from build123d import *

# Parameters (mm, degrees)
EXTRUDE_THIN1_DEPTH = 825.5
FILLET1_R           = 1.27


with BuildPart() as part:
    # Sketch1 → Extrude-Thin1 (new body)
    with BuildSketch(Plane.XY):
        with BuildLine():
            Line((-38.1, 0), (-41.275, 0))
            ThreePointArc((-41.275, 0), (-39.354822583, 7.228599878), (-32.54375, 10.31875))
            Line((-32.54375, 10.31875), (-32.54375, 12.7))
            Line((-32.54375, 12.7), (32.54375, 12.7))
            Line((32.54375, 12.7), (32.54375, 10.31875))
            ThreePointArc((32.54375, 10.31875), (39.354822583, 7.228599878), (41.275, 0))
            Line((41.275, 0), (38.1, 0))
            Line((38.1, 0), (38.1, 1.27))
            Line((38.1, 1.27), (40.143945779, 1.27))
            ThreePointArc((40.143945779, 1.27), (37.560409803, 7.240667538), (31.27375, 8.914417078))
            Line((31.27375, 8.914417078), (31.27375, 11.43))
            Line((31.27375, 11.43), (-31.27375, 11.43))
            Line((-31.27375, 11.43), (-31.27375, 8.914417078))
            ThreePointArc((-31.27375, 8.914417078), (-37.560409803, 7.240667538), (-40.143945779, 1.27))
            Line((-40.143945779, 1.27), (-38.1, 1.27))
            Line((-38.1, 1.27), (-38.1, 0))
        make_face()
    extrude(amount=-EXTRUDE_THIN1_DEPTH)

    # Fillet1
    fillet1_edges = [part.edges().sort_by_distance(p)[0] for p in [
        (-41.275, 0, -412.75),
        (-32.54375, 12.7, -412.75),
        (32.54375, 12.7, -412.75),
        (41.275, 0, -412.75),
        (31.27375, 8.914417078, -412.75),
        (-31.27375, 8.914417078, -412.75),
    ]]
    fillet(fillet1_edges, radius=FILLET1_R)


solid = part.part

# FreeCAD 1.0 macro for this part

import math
import FreeCAD as App
import Part
import Sketcher
Q = App.Units.Quantity


def edges_at(feature, points):
    """Names of the edges that pass closest to the given points."""
    edges = feature.Shape.Edges
    near = lambda p: min(range(len(edges)), key=lambda i: edges[i].distToShape(Part.Vertex(*p))[0])
    return sorted({f"Edge{near(p) + 1}" for p in points})

doc = App.newDocument("Part")
params = doc.addObject("Spreadsheet::Sheet", "Params")
for row, (alias, value) in enumerate([
    ("sketch1_radius", "0.34375 in"),
    ("sketch1_height", "0.05 in"),
    ("sketch1_width", "0.125 in"),
    ("sketch1_width2", "2.5625 in"),
    ("sketch1_height2", "0.09375 in"),
    ("pad1_length", "32.5 in"),
    ("fillet_radius", "0.05 in"),
], start=1):
    params.set(f"A{row}", alias)
    params.set(f"B{row}", "=" + value)
    params.setAlias(f"B{row}", alias)

body = doc.addObject("PartDesign::Body", "Body")

sketch1 = body.newObject("Sketcher::SketchObject", "Sketch")
sketch1.AttachmentSupport = (doc.getObject("XY_Plane"), [""])
sketch1.MapMode = "FlatFace"
sketch1.addGeometry(Part.LineSegment(App.Vector(-41.3, 0, 0), App.Vector(-38.1, 0, 0)), False)
sketch1.addGeometry(Part.LineSegment(App.Vector(-38.1, 0, 0), App.Vector(-38.1, 1.3, 0)), False)
sketch1.addGeometry(Part.LineSegment(App.Vector(-38.1, 1.3, 0), App.Vector(-40.1, 1.3, 0)), False)
sketch1.addGeometry(Part.ArcOfCircle(Part.Circle(App.Vector(-32.7, 1.6, 0), App.Vector(0, 0, 1), 7.5), math.radians(79), math.radians(182)), False)
sketch1.addGeometry(Part.LineSegment(App.Vector(-31.3, 8.9, 0), App.Vector(-31.3, 11.4, 0)), False)
sketch1.addGeometry(Part.LineSegment(App.Vector(-31.3, 11.4, 0), App.Vector(31.3, 11.4, 0)), False)
sketch1.addGeometry(Part.LineSegment(App.Vector(31.3, 11.4, 0), App.Vector(31.3, 8.9, 0)), False)
sketch1.addGeometry(Part.ArcOfCircle(Part.Circle(App.Vector(32.7, 1.6, 0), App.Vector(0, 0, 1), 7.5), math.radians(-2), math.radians(101)), False)
sketch1.addGeometry(Part.LineSegment(App.Vector(40.1, 1.3, 0), App.Vector(38.1, 1.3, 0)), False)
sketch1.addGeometry(Part.LineSegment(App.Vector(38.1, 1.3, 0), App.Vector(38.1, 0, 0)), False)
sketch1.addGeometry(Part.LineSegment(App.Vector(38.1, 0, 0), App.Vector(41.3, 0, 0)), False)
sketch1.addGeometry(Part.ArcOfCircle(Part.Circle(App.Vector(32.7, 1.6, 0), App.Vector(0, 0, 1), 8.7), math.radians(-10), math.radians(91)), False)
sketch1.addGeometry(Part.LineSegment(App.Vector(32.5, 10.3, 0), App.Vector(32.5, 12.7, 0)), False)
sketch1.addGeometry(Part.LineSegment(App.Vector(32.5, 12.7, 0), App.Vector(-32.5, 12.7, 0)), False)
sketch1.addGeometry(Part.LineSegment(App.Vector(-32.5, 12.7, 0), App.Vector(-32.5, 10.3, 0)), False)
sketch1.addGeometry(Part.ArcOfCircle(Part.Circle(App.Vector(-32.7, 1.6, 0), App.Vector(0, 0, 1), 8.7), math.radians(89), math.radians(190)), False)
sketch1.addConstraint(Sketcher.Constraint("Coincident", 0, 2, 1, 1))
sketch1.addConstraint(Sketcher.Constraint("Coincident", 1, 2, 2, 1))
sketch1.addConstraint(Sketcher.Constraint("Coincident", 2, 2, 3, 2))
sketch1.addConstraint(Sketcher.Constraint("Coincident", 3, 1, 4, 1))
sketch1.addConstraint(Sketcher.Constraint("Coincident", 4, 2, 5, 1))
sketch1.addConstraint(Sketcher.Constraint("Coincident", 5, 2, 6, 1))
sketch1.addConstraint(Sketcher.Constraint("Coincident", 6, 2, 7, 2))
sketch1.addConstraint(Sketcher.Constraint("Coincident", 7, 1, 8, 1))
sketch1.addConstraint(Sketcher.Constraint("Coincident", 8, 2, 9, 1))
sketch1.addConstraint(Sketcher.Constraint("Coincident", 9, 2, 10, 1))
sketch1.addConstraint(Sketcher.Constraint("Coincident", 10, 2, 11, 1))
sketch1.addConstraint(Sketcher.Constraint("Coincident", 11, 2, 12, 1))
sketch1.addConstraint(Sketcher.Constraint("Coincident", 12, 2, 13, 1))
sketch1.addConstraint(Sketcher.Constraint("Coincident", 13, 2, 14, 1))
sketch1.addConstraint(Sketcher.Constraint("Coincident", 14, 2, 15, 1))
sketch1.addConstraint(Sketcher.Constraint("Coincident", 15, 2, 0, 1))
sketch1.addConstraint(Sketcher.Constraint("Horizontal", 0))
sketch1.addConstraint(Sketcher.Constraint("Vertical", 1))
sketch1.addConstraint(Sketcher.Constraint("Horizontal", 2))
sketch1.addConstraint(Sketcher.Constraint("Vertical", 4))
sketch1.addConstraint(Sketcher.Constraint("Horizontal", 5))
sketch1.addConstraint(Sketcher.Constraint("Vertical", 6))
sketch1.addConstraint(Sketcher.Constraint("Horizontal", 8))
sketch1.addConstraint(Sketcher.Constraint("Vertical", 9))
sketch1.addConstraint(Sketcher.Constraint("Horizontal", 10))
sketch1.addConstraint(Sketcher.Constraint("Vertical", 12))
sketch1.addConstraint(Sketcher.Constraint("Horizontal", 13))
sketch1.addConstraint(Sketcher.Constraint("Vertical", 14))
sketch1.addConstraint(Sketcher.Constraint("Coincident", 11, 3, 7, 3))
sketch1.addConstraint(Sketcher.Constraint("Coincident", 15, 3, 3, 3))
sketch1.addConstraint(Sketcher.Constraint("Equal", 3, 7))
sketch1.addConstraint(Sketcher.Constraint("Equal", 11, 15))
sketch1.addConstraint(Sketcher.Constraint("Symmetric", 0, 2, 9, 2, -1, 1))
sketch1.addConstraint(Sketcher.Constraint("Symmetric", 3, 3, 7, 3, -2))
sketch1.addConstraint(Sketcher.Constraint("PointOnObject", 0, 2, -1))
sketch1.addConstraint(Sketcher.Constraint("Horizontal", 3, 1, 6, 2))
sketch1.addConstraint(Sketcher.Constraint("Horizontal", 2, 2, 7, 1))
sketch1.addConstraint(Sketcher.Constraint("Horizontal", 11, 2, 14, 2))
sketch1.addConstraint(Sketcher.Constraint("Radius", 11, Q("0.34375 in")))
sketch1.addConstraint(Sketcher.Constraint("DistanceY", 1, 1, 1, 2, Q("0.05 in")))
sketch1.addConstraint(Sketcher.Constraint("DistanceX", 0, 2, -1, 1, Q("1.5 in")))
sketch1.addConstraint(Sketcher.Constraint("DistanceY", -1, 1, 12, 2, Q("0.5 in")))
sketch1.addConstraint(Sketcher.Constraint("DistanceY", 1, 2, 4, 2, Q("0.4 in")))
sketch1.addConstraint(Sketcher.Constraint("DistanceX", 0, 1, 0, 2, Q("0.125 in")))
sketch1.addConstraint(Sketcher.Constraint("DistanceX", 13, 2, 13, 1, Q("2.5625 in")))
sketch1.addConstraint(Sketcher.Constraint("DistanceY", 12, 1, 12, 2, Q("0.09375 in")))
sketch1.addConstraint(Sketcher.Constraint("DistanceX", 5, 2, 11, 2, Q("0.05 in")))
sketch1.addConstraint(Sketcher.Constraint("Radius", 3, Q("7.46125 mm")))
sketch1.setExpression("Constraints[38]", "Params.sketch1_radius")
sketch1.setExpression("Constraints[39]", "Params.sketch1_height")
sketch1.setExpression("Constraints[43]", "Params.sketch1_width")
sketch1.setExpression("Constraints[44]", "Params.sketch1_width2")
sketch1.setExpression("Constraints[45]", "Params.sketch1_height2")
pad1 = body.newObject("PartDesign::Pad", "Pad")
pad1.Profile = sketch1
pad1.setExpression("Length", "Params.pad1_length")
pad1.Reversed = True
doc.recompute()

fillet = body.newObject("PartDesign::Fillet", "Fillet")
fillet.Base = (pad1, edges_at(pad1, [
    (-41.275, 0, -412.75),
    (-32.544, 12.7, -412.75),
    (32.544, 12.7, -412.75),
    (41.275, 0, -412.75),
    (31.274, 8.914, -412.75),
    (-31.274, 8.914, -412.75),
]))
fillet.setExpression("Radius", "Params.fillet_radius")

doc.recompute()
